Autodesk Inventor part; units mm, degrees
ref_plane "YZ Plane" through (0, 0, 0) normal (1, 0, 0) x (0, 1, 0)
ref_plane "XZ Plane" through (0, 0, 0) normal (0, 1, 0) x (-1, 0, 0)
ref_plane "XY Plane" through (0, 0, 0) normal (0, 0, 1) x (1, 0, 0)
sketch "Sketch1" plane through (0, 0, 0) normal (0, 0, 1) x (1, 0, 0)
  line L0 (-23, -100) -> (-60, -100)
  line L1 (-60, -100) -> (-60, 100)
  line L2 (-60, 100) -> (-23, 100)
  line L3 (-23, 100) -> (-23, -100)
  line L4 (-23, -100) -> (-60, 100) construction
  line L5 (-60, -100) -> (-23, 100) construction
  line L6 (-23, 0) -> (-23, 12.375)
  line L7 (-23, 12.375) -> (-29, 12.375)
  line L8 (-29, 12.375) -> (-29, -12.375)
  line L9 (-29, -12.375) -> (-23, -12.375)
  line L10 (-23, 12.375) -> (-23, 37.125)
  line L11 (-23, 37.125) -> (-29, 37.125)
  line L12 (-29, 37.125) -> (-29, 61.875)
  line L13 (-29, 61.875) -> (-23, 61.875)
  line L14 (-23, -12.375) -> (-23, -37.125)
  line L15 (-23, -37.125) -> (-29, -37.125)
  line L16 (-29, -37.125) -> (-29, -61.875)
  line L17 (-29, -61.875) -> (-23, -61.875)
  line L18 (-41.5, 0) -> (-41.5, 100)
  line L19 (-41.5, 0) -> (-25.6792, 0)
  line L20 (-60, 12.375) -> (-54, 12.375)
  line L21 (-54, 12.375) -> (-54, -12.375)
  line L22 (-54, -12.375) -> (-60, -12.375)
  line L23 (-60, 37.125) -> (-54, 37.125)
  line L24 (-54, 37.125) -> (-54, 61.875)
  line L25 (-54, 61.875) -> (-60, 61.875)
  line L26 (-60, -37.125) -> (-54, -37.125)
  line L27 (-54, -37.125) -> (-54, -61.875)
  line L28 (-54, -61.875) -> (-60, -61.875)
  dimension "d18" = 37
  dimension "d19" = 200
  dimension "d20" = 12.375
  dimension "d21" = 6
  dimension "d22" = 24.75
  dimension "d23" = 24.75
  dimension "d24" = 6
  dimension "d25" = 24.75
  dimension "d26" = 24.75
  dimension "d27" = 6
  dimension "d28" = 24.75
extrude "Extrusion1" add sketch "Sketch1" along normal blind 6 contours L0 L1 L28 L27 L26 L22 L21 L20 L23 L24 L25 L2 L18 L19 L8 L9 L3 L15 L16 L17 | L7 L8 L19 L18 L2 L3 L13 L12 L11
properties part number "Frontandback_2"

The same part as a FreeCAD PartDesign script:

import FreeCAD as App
import Part
import Sketcher

V = App.Vector

doc = App.newDocument("Part")
body = doc.addObject("PartDesign::Body", "Body")

# Sketch on XY plane
sketch1 = body.newObject("Sketcher::SketchObject", "Sketch")
sketch1.AttachmentSupport = (doc.getObject("XY_Plane"), [""])
sketch1.MapMode = "FlatFace"
sketch1.addGeometry(Part.LineSegment(V(-60, -100, 0), V(-23, -100, 0)), False)
sketch1.addGeometry(Part.LineSegment(V(-23, -100, 0), V(-23, -62, 0)), False)
sketch1.addGeometry(Part.LineSegment(V(-23, -62, 0), V(-29, -62, 0)), False)
sketch1.addGeometry(Part.LineSegment(V(-29, -62, 0), V(-29, -37, 0)), False)
sketch1.addGeometry(Part.LineSegment(V(-29, -37, 0), V(-23, -37, 0)), False)
sketch1.addGeometry(Part.LineSegment(V(-23, -37, 0), V(-23, -12, 0)), False)
sketch1.addGeometry(Part.LineSegment(V(-23, -12, 0), V(-29, -12, 0)), False)
sketch1.addGeometry(Part.LineSegment(V(-29, -12, 0), V(-29, 12, 0)), False)
sketch1.addGeometry(Part.LineSegment(V(-29, 12, 0), V(-23, 12, 0)), False)
sketch1.addGeometry(Part.LineSegment(V(-23, 12, 0), V(-23, 37, 0)), False)
sketch1.addGeometry(Part.LineSegment(V(-23, 37, 0), V(-29, 37, 0)), False)
sketch1.addGeometry(Part.LineSegment(V(-29, 37, 0), V(-29, 62, 0)), False)
sketch1.addGeometry(Part.LineSegment(V(-29, 62, 0), V(-23, 62, 0)), False)
sketch1.addGeometry(Part.LineSegment(V(-23, 62, 0), V(-23, 100, 0)), False)
sketch1.addGeometry(Part.LineSegment(V(-23, 100, 0), V(-60, 100, 0)), False)
sketch1.addGeometry(Part.LineSegment(V(-60, 100, 0), V(-60, 62, 0)), False)
sketch1.addGeometry(Part.LineSegment(V(-60, 62, 0), V(-54, 62, 0)), False)
sketch1.addGeometry(Part.LineSegment(V(-54, 62, 0), V(-54, 37, 0)), False)
sketch1.addGeometry(Part.LineSegment(V(-54, 37, 0), V(-60, 37, 0)), False)
sketch1.addGeometry(Part.LineSegment(V(-60, 37, 0), V(-60, 12, 0)), False)
sketch1.addGeometry(Part.LineSegment(V(-60, 12, 0), V(-54, 12, 0)), False)
sketch1.addGeometry(Part.LineSegment(V(-54, 12, 0), V(-54, -12, 0)), False)
sketch1.addGeometry(Part.LineSegment(V(-54, -12, 0), V(-60, -12, 0)), False)
sketch1.addGeometry(Part.LineSegment(V(-60, -12, 0), V(-60, -37, 0)), False)
sketch1.addGeometry(Part.LineSegment(V(-60, -37, 0), V(-54, -37, 0)), False)
sketch1.addGeometry(Part.LineSegment(V(-54, -37, 0), V(-54, -62, 0)), False)
sketch1.addGeometry(Part.LineSegment(V(-54, -62, 0), V(-60, -62, 0)), False)
sketch1.addGeometry(Part.LineSegment(V(-60, -62, 0), V(-60, -100, 0)), False)
sketch1.addConstraint(Sketcher.Constraint("Coincident", 0, 2, 1, 1))
sketch1.addConstraint(Sketcher.Constraint("Coincident", 1, 2, 2, 1))
sketch1.addConstraint(Sketcher.Constraint("Coincident", 2, 2, 3, 1))
sketch1.addConstraint(Sketcher.Constraint("Coincident", 3, 2, 4, 1))
sketch1.addConstraint(Sketcher.Constraint("Coincident", 4, 2, 5, 1))
sketch1.addConstraint(Sketcher.Constraint("Coincident", 5, 2, 6, 1))
sketch1.addConstraint(Sketcher.Constraint("Coincident", 6, 2, 7, 1))
sketch1.addConstraint(Sketcher.Constraint("Coincident", 7, 2, 8, 1))
sketch1.addConstraint(Sketcher.Constraint("Coincident", 8, 2, 9, 1))
sketch1.addConstraint(Sketcher.Constraint("Coincident", 9, 2, 10, 1))
sketch1.addConstraint(Sketcher.Constraint("Coincident", 10, 2, 11, 1))
sketch1.addConstraint(Sketcher.Constraint("Coincident", 11, 2, 12, 1))
sketch1.addConstraint(Sketcher.Constraint("Coincident", 12, 2, 13, 1))
sketch1.addConstraint(Sketcher.Constraint("Coincident", 13, 2, 14, 1))
sketch1.addConstraint(Sketcher.Constraint("Coincident", 14, 2, 15, 1))
sketch1.addConstraint(Sketcher.Constraint("Coincident", 15, 2, 16, 1))
sketch1.addConstraint(Sketcher.Constraint("Coincident", 16, 2, 17, 1))
sketch1.addConstraint(Sketcher.Constraint("Coincident", 17, 2, 18, 1))
sketch1.addConstraint(Sketcher.Constraint("Coincident", 18, 2, 19, 1))
sketch1.addConstraint(Sketcher.Constraint("Coincident", 19, 2, 20, 1))
sketch1.addConstraint(Sketcher.Constraint("Coincident", 20, 2, 21, 1))
sketch1.addConstraint(Sketcher.Constraint("Coincident", 21, 2, 22, 1))
sketch1.addConstraint(Sketcher.Constraint("Coincident", 22, 2, 23, 1))
sketch1.addConstraint(Sketcher.Constraint("Coincident", 23, 2, 24, 1))
sketch1.addConstraint(Sketcher.Constraint("Coincident", 24, 2, 25, 1))
sketch1.addConstraint(Sketcher.Constraint("Coincident", 25, 2, 26, 1))
sketch1.addConstraint(Sketcher.Constraint("Coincident", 26, 2, 27, 1))
sketch1.addConstraint(Sketcher.Constraint("Coincident", 27, 2, 0, 1))
sketch1.addConstraint(Sketcher.Constraint("Horizontal", 0))
sketch1.addConstraint(Sketcher.Constraint("Vertical", 1))
sketch1.addConstraint(Sketcher.Constraint("Horizontal", 2))
sketch1.addConstraint(Sketcher.Constraint("Vertical", 3))
sketch1.addConstraint(Sketcher.Constraint("Horizontal", 4))
sketch1.addConstraint(Sketcher.Constraint("Vertical", 5))
sketch1.addConstraint(Sketcher.Constraint("Horizontal", 6))
sketch1.addConstraint(Sketcher.Constraint("Vertical", 7))
sketch1.addConstraint(Sketcher.Constraint("Horizontal", 8))
sketch1.addConstraint(Sketcher.Constraint("Vertical", 9))
sketch1.addConstraint(Sketcher.Constraint("Horizontal", 10))
sketch1.addConstraint(Sketcher.Constraint("Vertical", 11))
sketch1.addConstraint(Sketcher.Constraint("Horizontal", 12))
sketch1.addConstraint(Sketcher.Constraint("Vertical", 13))
sketch1.addConstraint(Sketcher.Constraint("Horizontal", 14))
sketch1.addConstraint(Sketcher.Constraint("Vertical", 15))
sketch1.addConstraint(Sketcher.Constraint("Horizontal", 16))
sketch1.addConstraint(Sketcher.Constraint("Vertical", 17))
sketch1.addConstraint(Sketcher.Constraint("Horizontal", 18))
sketch1.addConstraint(Sketcher.Constraint("Vertical", 19))
sketch1.addConstraint(Sketcher.Constraint("Horizontal", 20))
sketch1.addConstraint(Sketcher.Constraint("Vertical", 21))
sketch1.addConstraint(Sketcher.Constraint("Horizontal", 22))
sketch1.addConstraint(Sketcher.Constraint("Vertical", 23))
sketch1.addConstraint(Sketcher.Constraint("Horizontal", 24))
sketch1.addConstraint(Sketcher.Constraint("Vertical", 25))
sketch1.addConstraint(Sketcher.Constraint("Horizontal", 26))
sketch1.addConstraint(Sketcher.Constraint("Vertical", 27))
sketch1.addConstraint(Sketcher.Constraint("Symmetric", 5, 2, 8, 2, -1))
sketch1.addConstraint(Sketcher.Constraint("Symmetric", 3, 2, 10, 2, -1))
sketch1.addConstraint(Sketcher.Constraint("Symmetric", 1, 2, 12, 2, -1))
sketch1.addConstraint(Sketcher.Constraint("Symmetric", 19, 2, 22, 2, -1))
sketch1.addConstraint(Sketcher.Constraint("Symmetric", 17, 2, 24, 2, -1))
sketch1.addConstraint(Sketcher.Constraint("Symmetric", 15, 2, 26, 2, -1))
sketch1.addConstraint(Sketcher.Constraint("Horizontal", 12, 2, 15, 2))
sketch1.addConstraint(Sketcher.Constraint("Horizontal", 10, 2, 17, 2))
sketch1.addConstraint(Sketcher.Constraint("Horizontal", 8, 2, 19, 2))
sketch1.addConstraint(Sketcher.Constraint("Vertical", 1, 2, 4, 2))
sketch1.addConstraint(Sketcher.Constraint("Vertical", 3, 2, 6, 2))
sketch1.addConstraint(Sketcher.Constraint("Vertical", 15, 2, 18, 2))
sketch1.addConstraint(Sketcher.Constraint("Vertical", 17, 2, 20, 2))
sketch1.addConstraint(Sketcher.Constraint("Equal", 12, 16))
sketch1.addConstraint(Sketcher.Constraint("Equal", 3, 5))
sketch1.addConstraint(Sketcher.Constraint("Equal", 5, 7))
sketch1.addConstraint(Sketcher.Constraint("Equal", 1, 13))
sketch1.addConstraint(Sketcher.Constraint("DistanceX", 0, 1, 0, 2, 37.0))
sketch1.addConstraint(Sketcher.Constraint("DistanceX", 2, 2, 2, 1, 6.0))
sketch1.addConstraint(Sketcher.Constraint("DistanceY", 3, 1, 3, 2, 24.75))
sketch1.addConstraint(Sketcher.Constraint("DistanceX", 0, 2, -1, 1, 23.0))
sketch1.addConstraint(Sketcher.Constraint("DistanceY", 0, 2, -1, 1, 100.0))
pad1 = body.newObject("PartDesign::Pad", "Pad")
pad1.Profile = sketch1
pad1.Length = 6

doc.recompute()
